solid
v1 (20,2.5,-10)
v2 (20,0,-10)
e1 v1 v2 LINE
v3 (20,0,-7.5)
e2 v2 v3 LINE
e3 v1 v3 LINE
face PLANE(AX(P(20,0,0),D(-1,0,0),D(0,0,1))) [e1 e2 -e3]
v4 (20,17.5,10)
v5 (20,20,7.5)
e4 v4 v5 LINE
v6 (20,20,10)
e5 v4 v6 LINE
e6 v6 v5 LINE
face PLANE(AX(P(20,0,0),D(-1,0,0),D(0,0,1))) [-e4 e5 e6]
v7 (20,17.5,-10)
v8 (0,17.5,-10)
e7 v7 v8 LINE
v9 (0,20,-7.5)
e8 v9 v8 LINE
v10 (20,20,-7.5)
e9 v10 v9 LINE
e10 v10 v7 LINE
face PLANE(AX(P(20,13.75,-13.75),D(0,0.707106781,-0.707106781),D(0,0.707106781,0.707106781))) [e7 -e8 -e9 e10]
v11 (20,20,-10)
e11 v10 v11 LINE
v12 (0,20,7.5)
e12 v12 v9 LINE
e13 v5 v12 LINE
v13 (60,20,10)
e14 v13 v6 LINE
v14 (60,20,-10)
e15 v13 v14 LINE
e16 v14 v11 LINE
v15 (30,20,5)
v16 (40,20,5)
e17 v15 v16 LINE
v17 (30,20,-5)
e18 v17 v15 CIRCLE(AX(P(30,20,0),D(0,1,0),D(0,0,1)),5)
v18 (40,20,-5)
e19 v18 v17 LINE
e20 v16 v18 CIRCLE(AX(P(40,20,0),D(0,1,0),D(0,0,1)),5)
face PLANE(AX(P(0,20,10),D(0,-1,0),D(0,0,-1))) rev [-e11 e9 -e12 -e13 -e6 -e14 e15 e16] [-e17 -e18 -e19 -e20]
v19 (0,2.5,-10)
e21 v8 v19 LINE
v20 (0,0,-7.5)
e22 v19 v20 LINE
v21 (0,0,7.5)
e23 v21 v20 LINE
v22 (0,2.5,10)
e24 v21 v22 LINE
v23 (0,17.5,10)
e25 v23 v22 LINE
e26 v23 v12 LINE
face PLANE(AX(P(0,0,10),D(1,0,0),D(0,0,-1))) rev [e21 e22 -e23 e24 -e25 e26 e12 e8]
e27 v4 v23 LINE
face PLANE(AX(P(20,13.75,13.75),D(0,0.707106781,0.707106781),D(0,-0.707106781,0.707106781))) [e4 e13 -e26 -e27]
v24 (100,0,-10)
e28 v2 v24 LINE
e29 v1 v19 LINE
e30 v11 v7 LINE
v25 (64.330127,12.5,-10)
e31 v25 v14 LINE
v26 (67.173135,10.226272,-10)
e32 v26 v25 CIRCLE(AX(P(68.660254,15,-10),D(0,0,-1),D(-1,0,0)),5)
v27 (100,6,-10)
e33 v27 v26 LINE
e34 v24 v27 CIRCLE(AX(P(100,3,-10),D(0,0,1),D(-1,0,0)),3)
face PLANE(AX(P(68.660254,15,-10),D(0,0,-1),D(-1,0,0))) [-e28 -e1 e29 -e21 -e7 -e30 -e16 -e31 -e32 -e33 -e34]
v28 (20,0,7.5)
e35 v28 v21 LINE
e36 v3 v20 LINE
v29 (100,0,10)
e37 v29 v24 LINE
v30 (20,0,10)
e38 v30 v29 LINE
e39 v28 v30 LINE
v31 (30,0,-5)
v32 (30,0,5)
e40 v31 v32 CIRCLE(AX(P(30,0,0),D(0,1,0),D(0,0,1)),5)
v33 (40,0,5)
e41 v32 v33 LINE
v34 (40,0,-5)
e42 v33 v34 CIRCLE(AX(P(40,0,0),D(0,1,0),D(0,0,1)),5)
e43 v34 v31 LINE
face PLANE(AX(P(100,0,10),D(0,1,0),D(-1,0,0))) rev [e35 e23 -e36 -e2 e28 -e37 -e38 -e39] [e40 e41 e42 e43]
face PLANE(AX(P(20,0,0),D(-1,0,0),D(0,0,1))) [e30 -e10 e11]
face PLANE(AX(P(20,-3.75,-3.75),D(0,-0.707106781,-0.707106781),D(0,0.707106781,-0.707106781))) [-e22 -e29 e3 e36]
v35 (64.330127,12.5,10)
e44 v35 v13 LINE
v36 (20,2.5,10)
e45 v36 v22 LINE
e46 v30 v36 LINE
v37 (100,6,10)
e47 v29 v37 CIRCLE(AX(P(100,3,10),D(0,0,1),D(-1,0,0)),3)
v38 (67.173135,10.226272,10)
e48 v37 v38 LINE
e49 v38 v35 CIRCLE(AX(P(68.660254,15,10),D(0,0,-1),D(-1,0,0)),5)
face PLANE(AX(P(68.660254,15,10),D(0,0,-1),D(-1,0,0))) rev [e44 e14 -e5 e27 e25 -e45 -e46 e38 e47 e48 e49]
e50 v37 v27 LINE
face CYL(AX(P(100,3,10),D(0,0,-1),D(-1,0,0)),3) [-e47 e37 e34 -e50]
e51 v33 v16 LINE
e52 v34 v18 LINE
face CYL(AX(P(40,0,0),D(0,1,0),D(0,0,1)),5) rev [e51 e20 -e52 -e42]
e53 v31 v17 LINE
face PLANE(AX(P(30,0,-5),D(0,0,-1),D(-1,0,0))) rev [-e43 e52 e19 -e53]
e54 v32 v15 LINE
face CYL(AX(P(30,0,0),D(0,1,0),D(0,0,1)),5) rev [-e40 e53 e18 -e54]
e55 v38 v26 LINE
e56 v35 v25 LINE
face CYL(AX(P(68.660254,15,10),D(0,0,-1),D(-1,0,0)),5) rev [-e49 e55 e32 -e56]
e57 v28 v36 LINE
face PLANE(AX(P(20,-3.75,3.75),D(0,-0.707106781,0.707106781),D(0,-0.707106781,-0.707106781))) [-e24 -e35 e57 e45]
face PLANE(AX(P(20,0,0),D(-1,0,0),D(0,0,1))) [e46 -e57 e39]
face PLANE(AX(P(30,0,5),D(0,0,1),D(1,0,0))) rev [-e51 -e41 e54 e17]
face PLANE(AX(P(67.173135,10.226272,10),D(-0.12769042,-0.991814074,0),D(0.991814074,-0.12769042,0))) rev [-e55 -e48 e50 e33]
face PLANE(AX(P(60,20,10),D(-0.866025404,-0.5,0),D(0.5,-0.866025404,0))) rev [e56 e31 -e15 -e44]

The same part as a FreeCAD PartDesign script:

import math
import FreeCAD as App
import Part
import Sketcher
Q = App.Units.Quantity


def add_polygon(sketch, points):
    """Adds a closed chain of lines whose ends are joined by coincident constraints."""
    first, n = sketch.GeometryCount, len(points)
    for a, b in zip(points, points[1:] + points[:1]):
        sketch.addGeometry(Part.LineSegment(App.Vector(*a, 0), App.Vector(*b, 0)), False)
    for i in range(n):
        sketch.addConstraint(Sketcher.Constraint("Coincident", first + i, 2, first + (i + 1) % n, 1))

doc = App.newDocument("Part")
body = doc.addObject("PartDesign::Body", "Body")

sketch1 = body.newObject("Sketcher::SketchObject", "Sketch")
sketch1.AttachmentSupport = (doc.getObject("XY_Plane"), [""])
sketch1.MapMode = "FlatFace"
sketch1.addGeometry(Part.LineSegment(App.Vector(0, 20, 0), App.Vector(0, 0, 0)), False)
sketch1.addGeometry(Part.LineSegment(App.Vector(0, 0, 0), App.Vector(100, 0, 0)), False)
sketch1.addGeometry(Part.ArcOfCircle(Part.Circle(App.Vector(100, 3, 0), App.Vector(0, 0, 1), 3), math.radians(-90), math.radians(90)), False)
sketch1.addGeometry(Part.LineSegment(App.Vector(100, 6, 0), App.Vector(67.2, 10.2, 0)), False)
sketch1.addGeometry(Part.ArcOfCircle(Part.Circle(App.Vector(68.7, 15, 0), App.Vector(0, 0, 1), 5), math.radians(-150), math.radians(-107)), False)
sketch1.addGeometry(Part.LineSegment(App.Vector(64.3, 12.5, 0), App.Vector(60, 20, 0)), False)
sketch1.addGeometry(Part.LineSegment(App.Vector(60, 20, 0), App.Vector(0, 20, 0)), False)
sketch1.addConstraint(Sketcher.Constraint("Coincident", 0, 2, 1, 1))
sketch1.addConstraint(Sketcher.Constraint("Tangent", 1, 2, 2, 1))
sketch1.addConstraint(Sketcher.Constraint("Coincident", 2, 2, 3, 1))
sketch1.addConstraint(Sketcher.Constraint("Coincident", 3, 2, 4, 2))
sketch1.addConstraint(Sketcher.Constraint("Tangent", 4, 1, 5, 1))
sketch1.addConstraint(Sketcher.Constraint("Coincident", 5, 2, 6, 1))
sketch1.addConstraint(Sketcher.Constraint("Coincident", 6, 2, 0, 1))
sketch1.addConstraint(Sketcher.Constraint("Vertical", 0))
sketch1.addConstraint(Sketcher.Constraint("Horizontal", 1))
sketch1.addConstraint(Sketcher.Constraint("Horizontal", 6))
sketch1.addConstraint(Sketcher.Constraint("Coincident", 0, 2, -1, 1))
sketch1.addConstraint(Sketcher.Constraint("Vertical", 1, 2, 2, 2))
sketch1.addConstraint(Sketcher.Constraint("Radius", 2, Q("3 mm")))
sketch1.addConstraint(Sketcher.Constraint("Radius", 4, Q("5 mm")))
sketch1.addConstraint(Sketcher.Constraint("DistanceX", 1, 1, 1, 2, Q("100 mm")))
sketch1.addConstraint(Sketcher.Constraint("DistanceX", 6, 2, 6, 1, Q("60 mm")))
sketch1.addConstraint(Sketcher.Constraint("DistanceY", 0, 2, 0, 1, Q("20 mm")))
sketch1.addConstraint(Sketcher.Constraint("Angle", 5, Q("120 deg")))
sketch1.addConstraint(Sketcher.Constraint("DistanceY", -1, 1, 4, 3, Q("15 mm")))
sketch1.addConstraint(Sketcher.Constraint("Distance", 3, Q("33.097801 mm")))
pad1 = body.newObject("PartDesign::Pad", "Pad")
pad1.Profile = sketch1
pad1.Length = 20
pad1.Midplane = True

sketch2 = body.newObject("Sketcher::SketchObject", "Sketch001")
sketch2.AttachmentSupport = (doc.getObject("XZ_Plane"), [""])
sketch2.MapMode = "FlatFace"
sketch2.AttachmentOffset = App.Placement(App.Vector(0, 0, -20), App.Rotation())
sketch2.addGeometry(Part.LineSegment(App.Vector(40, -5, 0), App.Vector(30, -5, 0)), False)
sketch2.addGeometry(Part.ArcOfCircle(Part.Circle(App.Vector(30, 0, 0), App.Vector(0, 0, 1), 5), math.radians(90), math.radians(270)), False)
sketch2.addGeometry(Part.LineSegment(App.Vector(30, 5, 0), App.Vector(40, 5, 0)), False)
sketch2.addGeometry(Part.ArcOfCircle(Part.Circle(App.Vector(40, 0, 0), App.Vector(0, 0, 1), 5), math.radians(-90), math.radians(90)), False)
sketch2.addConstraint(Sketcher.Constraint("Tangent", 0, 2, 1, 2))
sketch2.addConstraint(Sketcher.Constraint("Tangent", 1, 1, 2, 1))
sketch2.addConstraint(Sketcher.Constraint("Tangent", 2, 2, 3, 2))
sketch2.addConstraint(Sketcher.Constraint("Tangent", 3, 1, 0, 1))
sketch2.addConstraint(Sketcher.Constraint("Horizontal", 0))
sketch2.addConstraint(Sketcher.Constraint("Horizontal", 2))
sketch2.addConstraint(Sketcher.Constraint("PointOnObject", 1, 3, -1))
sketch2.addConstraint(Sketcher.Constraint("Radius", 1, Q("5 mm")))
sketch2.addConstraint(Sketcher.Constraint("DistanceX", 0, 2, 0, 1, Q("10 mm")))
sketch2.addConstraint(Sketcher.Constraint("DistanceX", -1, 1, 1, 3, Q("30 mm")))
pocket1 = body.newObject("PartDesign::Pocket", "Pocket")
pocket1.Profile = sketch2
pocket1.Type = "ThroughAll"
pocket1.Reversed = True

sketch3 = body.newObject("Sketcher::SketchObject", "Sketch002")
sketch3.AttachmentSupport = (doc.getObject("YZ_Plane"), [""])
sketch3.MapMode = "FlatFace"
add_polygon(sketch3, [(17.5, -10), (20, -7.5), (20, -10)])
add_polygon(sketch3, [(20, 10), (20, 7.5), (17.5, 10)])
add_polygon(sketch3, [(0, 10), (2.5, 10), (0, 7.5)])
add_polygon(sketch3, [(0, -7.5), (2.5, -10), (0, -10)])
sketch3.addConstraint(Sketcher.Constraint("Vertical", 1))
sketch3.addConstraint(Sketcher.Constraint("Horizontal", 2))
sketch3.addConstraint(Sketcher.Constraint("Vertical", 3))
sketch3.addConstraint(Sketcher.Constraint("Horizontal", 5))
sketch3.addConstraint(Sketcher.Constraint("Horizontal", 6))
sketch3.addConstraint(Sketcher.Constraint("Vertical", 8))
sketch3.addConstraint(Sketcher.Constraint("Horizontal", 10))
sketch3.addConstraint(Sketcher.Constraint("Vertical", 11))
sketch3.addConstraint(Sketcher.Constraint("Symmetric", 8, 2, 10, 2, -1, 1))
sketch3.addConstraint(Sketcher.Constraint("Symmetric", 0, 2, 3, 2, -1))
sketch3.addConstraint(Sketcher.Constraint("Symmetric", 2, 2, 4, 2, -1))
sketch3.addConstraint(Sketcher.Constraint("Symmetric", 7, 2, 11, 2, -1))
sketch3.addConstraint(Sketcher.Constraint("Perpendicular", 0, 4))
sketch3.addConstraint(Sketcher.Constraint("Perpendicular", 4, 7))
sketch3.addConstraint(Sketcher.Constraint("Perpendicular", 7, 9))
sketch3.addConstraint(Sketcher.Constraint("Horizontal", 5, 2, 6, 2))
sketch3.addConstraint(Sketcher.Constraint("Horizontal", 3, 2, 7, 2))
sketch3.addConstraint(Sketcher.Constraint("DistanceX", 2, 2, 2, 1, Q("2.5 mm")))
sketch3.addConstraint(Sketcher.Constraint("DistanceX", -1, 1, 0, 2, Q("20 mm")))
sketch3.addConstraint(Sketcher.Constraint("DistanceY", 1, 2, -1, 1, Q("10 mm")))
pocket2 = body.newObject("PartDesign::Pocket", "Pocket001")
pocket2.Profile = sketch3
pocket2.Length = 20
pocket2.Reversed = True

doc.recompute()
